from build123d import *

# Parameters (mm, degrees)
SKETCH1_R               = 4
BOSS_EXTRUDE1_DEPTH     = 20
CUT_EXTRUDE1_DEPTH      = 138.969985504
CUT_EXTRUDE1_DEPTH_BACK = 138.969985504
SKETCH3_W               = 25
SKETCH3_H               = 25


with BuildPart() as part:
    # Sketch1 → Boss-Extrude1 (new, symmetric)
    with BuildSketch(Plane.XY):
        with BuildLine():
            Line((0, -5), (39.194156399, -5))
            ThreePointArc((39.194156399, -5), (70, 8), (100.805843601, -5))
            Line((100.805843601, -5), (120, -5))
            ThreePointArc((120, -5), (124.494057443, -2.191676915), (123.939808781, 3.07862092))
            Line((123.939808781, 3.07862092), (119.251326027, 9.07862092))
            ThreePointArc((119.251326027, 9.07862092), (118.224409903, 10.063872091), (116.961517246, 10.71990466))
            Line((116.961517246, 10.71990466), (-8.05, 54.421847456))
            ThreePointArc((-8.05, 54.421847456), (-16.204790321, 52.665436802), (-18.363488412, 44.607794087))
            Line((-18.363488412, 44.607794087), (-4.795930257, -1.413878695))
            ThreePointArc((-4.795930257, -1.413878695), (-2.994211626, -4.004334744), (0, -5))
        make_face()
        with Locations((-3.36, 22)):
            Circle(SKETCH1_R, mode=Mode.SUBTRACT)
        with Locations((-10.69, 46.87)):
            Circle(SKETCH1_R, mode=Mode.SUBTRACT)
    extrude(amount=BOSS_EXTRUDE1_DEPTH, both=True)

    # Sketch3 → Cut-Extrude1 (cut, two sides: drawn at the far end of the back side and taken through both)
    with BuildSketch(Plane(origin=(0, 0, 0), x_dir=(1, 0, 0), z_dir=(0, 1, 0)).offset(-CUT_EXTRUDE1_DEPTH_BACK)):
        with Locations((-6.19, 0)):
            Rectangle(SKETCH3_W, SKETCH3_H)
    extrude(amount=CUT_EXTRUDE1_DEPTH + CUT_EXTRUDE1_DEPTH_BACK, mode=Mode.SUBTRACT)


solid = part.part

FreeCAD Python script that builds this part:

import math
import FreeCAD as App
import Part
import Sketcher


def add_polygon(sketch, points):
    """Adds a closed chain of lines whose ends are joined by coincident constraints."""
    first, n = sketch.GeometryCount, len(points)
    for a, b in zip(points, points[1:] + points[:1]):
        sketch.addGeometry(Part.LineSegment(App.Vector(*a, 0), App.Vector(*b, 0)), False)
    for i in range(n):
        sketch.addConstraint(Sketcher.Constraint("Coincident", first + i, 2, first + (i + 1) % n, 1))

doc = App.newDocument("Part")
body = doc.addObject("PartDesign::Body", "Body")

# Sketch on XY plane
sketch1 = body.newObject("Sketcher::SketchObject", "Sketch")
sketch1.AttachmentSupport = (doc.getObject("XY_Plane"), [""])
sketch1.MapMode = "FlatFace"
sketch1.addGeometry([
    Part.LineSegment(App.Vector(0, -5, 0), App.Vector(39.2, -5, 0)),  # 0
    Part.ArcOfCircle(Part.Circle(App.Vector(70, -35, 0), App.Vector(0, 0, 1), 43), math.radians(44), math.radians(136)),  # 1
    Part.LineSegment(App.Vector(100.8, -5, 0), App.Vector(120, -5, 0)),  # 2
    Part.ArcOfCircle(Part.Circle(App.Vector(120, 0, 0), App.Vector(0, 0, 1), 5), math.radians(-90), math.radians(38)),  # 3
    Part.LineSegment(App.Vector(123.9, 3.1, 0), App.Vector(119.3, 9.1, 0)),  # 4
    Part.ArcOfCircle(Part.Circle(App.Vector(115.3, 6, 0), App.Vector(0, 0, 1), 5), math.radians(38), math.radians(71)),  # 5
    Part.LineSegment(App.Vector(117, 10.7, 0), App.Vector(-8.1, 54.4, 0)),  # 6
    Part.ArcOfCircle(Part.Circle(App.Vector(-10.7, 46.9, 0), App.Vector(0, 0, 1), 8), math.radians(71), math.radians(196)),  # 7
    Part.LineSegment(App.Vector(-18.4, 44.6, 0), App.Vector(-4.8, -1.4, 0)),  # 8
    Part.ArcOfCircle(Part.Circle(App.Vector(0, 0, 0), App.Vector(0, 0, 1), 5), math.radians(-164), math.radians(-90)),  # 9
    Part.Circle(App.Vector(-3.4, 22, 0), App.Vector(0, 0, 1), 4),  # 10
    Part.Circle(App.Vector(-10.7, 46.9, 0), App.Vector(0, 0, 1), 4),  # 11
], False)
sketch1.addConstraint([
    Sketcher.Constraint("Coincident", 0, 2, 1, 2),
    Sketcher.Constraint("Coincident", 1, 1, 2, 1),
    Sketcher.Constraint("Tangent", 2, 2, 3, 1),
    Sketcher.Constraint("Tangent", 3, 2, 4, 1),
    Sketcher.Constraint("Tangent", 4, 2, 5, 1),
    Sketcher.Constraint("Tangent", 5, 2, 6, 1),
    Sketcher.Constraint("Tangent", 6, 2, 7, 1),
    Sketcher.Constraint("Tangent", 7, 2, 8, 1),
    Sketcher.Constraint("Tangent", 8, 2, 9, 1),
    Sketcher.Constraint("Tangent", 9, 2, 0, 1),
    Sketcher.Constraint("Horizontal", 0),
    Sketcher.Constraint("Horizontal", 2),
    Sketcher.Constraint("Coincident", 9, 3, -1, 1),
    Sketcher.Constraint("Coincident", 11, 3, 7, 3),
    Sketcher.Constraint("Equal", 3, 5),
    Sketcher.Constraint("Equal", 5, 9),
    Sketcher.Constraint("Equal", 10, 11),
    Sketcher.Constraint("PointOnObject", 3, 3, -1),
    Sketcher.Constraint("Diameter", 10, 8.0),
    Sketcher.Constraint("Radius", 1, 43.0),
    Sketcher.Constraint("Radius", 3, 5.0),
    Sketcher.Constraint("Radius", 7, 8.0),
    Sketcher.Constraint("DistanceX", -1, 1, 1, 3, 70.0),
    Sketcher.Constraint("DistanceY", 1, 3, -1, 1, 35.0),
    Sketcher.Constraint("DistanceX", -1, 1, 3, 3, 120.0),
    Sketcher.Constraint("DistanceY", -1, 1, 5, 3, 6.0),
    Sketcher.Constraint("DistanceY", -1, 1, 10, 3, 22.0),
    Sketcher.Constraint("DistanceX", 7, 3, -1, 1, 10.69),
    Sketcher.Constraint("DistanceY", -1, 1, 7, 3, 46.87),
    Sketcher.Constraint("DistanceX", 10, 3, -1, 1, 3.36),
    Sketcher.Constraint("DistanceX", 6, 2, -1, 1, 8.05),
])
pad1 = body.newObject("PartDesign::Pad", "Pad")
pad1.Profile = sketch1
pad1.Length = 40
pad1.Midplane = True

# Sketch on XZ plane
sketch2 = body.newObject("Sketcher::SketchObject", "Sketch001")
sketch2.AttachmentSupport = (doc.getObject("XZ_Plane"), [""])
sketch2.MapMode = "FlatFace"
add_polygon(sketch2, [(-19, -12), (-19, 12), (6, 12), (6, -12)])  # lines 0-3
sketch2.addConstraint([
    Sketcher.Constraint("Vertical", 0),
    Sketcher.Constraint("Horizontal", 1),
    Sketcher.Constraint("Vertical", 2),
    Sketcher.Constraint("Horizontal", 3),
    Sketcher.Constraint("Equal", 3, 0),
    Sketcher.Constraint("DistanceX", 1, 1, 1, 2, 25.0),
    Sketcher.Constraint("DistanceY", -1, 1, 0, 2, 12.5),
    Sketcher.Constraint("DistanceX", 0, 2, -1, 1, 18.69),
])
pocket1 = body.newObject("PartDesign::Pocket", "Pocket")
pocket1.Profile = sketch2
pocket1.Type = "ThroughAll"
pocket1.Midplane = True

doc.recompute()
